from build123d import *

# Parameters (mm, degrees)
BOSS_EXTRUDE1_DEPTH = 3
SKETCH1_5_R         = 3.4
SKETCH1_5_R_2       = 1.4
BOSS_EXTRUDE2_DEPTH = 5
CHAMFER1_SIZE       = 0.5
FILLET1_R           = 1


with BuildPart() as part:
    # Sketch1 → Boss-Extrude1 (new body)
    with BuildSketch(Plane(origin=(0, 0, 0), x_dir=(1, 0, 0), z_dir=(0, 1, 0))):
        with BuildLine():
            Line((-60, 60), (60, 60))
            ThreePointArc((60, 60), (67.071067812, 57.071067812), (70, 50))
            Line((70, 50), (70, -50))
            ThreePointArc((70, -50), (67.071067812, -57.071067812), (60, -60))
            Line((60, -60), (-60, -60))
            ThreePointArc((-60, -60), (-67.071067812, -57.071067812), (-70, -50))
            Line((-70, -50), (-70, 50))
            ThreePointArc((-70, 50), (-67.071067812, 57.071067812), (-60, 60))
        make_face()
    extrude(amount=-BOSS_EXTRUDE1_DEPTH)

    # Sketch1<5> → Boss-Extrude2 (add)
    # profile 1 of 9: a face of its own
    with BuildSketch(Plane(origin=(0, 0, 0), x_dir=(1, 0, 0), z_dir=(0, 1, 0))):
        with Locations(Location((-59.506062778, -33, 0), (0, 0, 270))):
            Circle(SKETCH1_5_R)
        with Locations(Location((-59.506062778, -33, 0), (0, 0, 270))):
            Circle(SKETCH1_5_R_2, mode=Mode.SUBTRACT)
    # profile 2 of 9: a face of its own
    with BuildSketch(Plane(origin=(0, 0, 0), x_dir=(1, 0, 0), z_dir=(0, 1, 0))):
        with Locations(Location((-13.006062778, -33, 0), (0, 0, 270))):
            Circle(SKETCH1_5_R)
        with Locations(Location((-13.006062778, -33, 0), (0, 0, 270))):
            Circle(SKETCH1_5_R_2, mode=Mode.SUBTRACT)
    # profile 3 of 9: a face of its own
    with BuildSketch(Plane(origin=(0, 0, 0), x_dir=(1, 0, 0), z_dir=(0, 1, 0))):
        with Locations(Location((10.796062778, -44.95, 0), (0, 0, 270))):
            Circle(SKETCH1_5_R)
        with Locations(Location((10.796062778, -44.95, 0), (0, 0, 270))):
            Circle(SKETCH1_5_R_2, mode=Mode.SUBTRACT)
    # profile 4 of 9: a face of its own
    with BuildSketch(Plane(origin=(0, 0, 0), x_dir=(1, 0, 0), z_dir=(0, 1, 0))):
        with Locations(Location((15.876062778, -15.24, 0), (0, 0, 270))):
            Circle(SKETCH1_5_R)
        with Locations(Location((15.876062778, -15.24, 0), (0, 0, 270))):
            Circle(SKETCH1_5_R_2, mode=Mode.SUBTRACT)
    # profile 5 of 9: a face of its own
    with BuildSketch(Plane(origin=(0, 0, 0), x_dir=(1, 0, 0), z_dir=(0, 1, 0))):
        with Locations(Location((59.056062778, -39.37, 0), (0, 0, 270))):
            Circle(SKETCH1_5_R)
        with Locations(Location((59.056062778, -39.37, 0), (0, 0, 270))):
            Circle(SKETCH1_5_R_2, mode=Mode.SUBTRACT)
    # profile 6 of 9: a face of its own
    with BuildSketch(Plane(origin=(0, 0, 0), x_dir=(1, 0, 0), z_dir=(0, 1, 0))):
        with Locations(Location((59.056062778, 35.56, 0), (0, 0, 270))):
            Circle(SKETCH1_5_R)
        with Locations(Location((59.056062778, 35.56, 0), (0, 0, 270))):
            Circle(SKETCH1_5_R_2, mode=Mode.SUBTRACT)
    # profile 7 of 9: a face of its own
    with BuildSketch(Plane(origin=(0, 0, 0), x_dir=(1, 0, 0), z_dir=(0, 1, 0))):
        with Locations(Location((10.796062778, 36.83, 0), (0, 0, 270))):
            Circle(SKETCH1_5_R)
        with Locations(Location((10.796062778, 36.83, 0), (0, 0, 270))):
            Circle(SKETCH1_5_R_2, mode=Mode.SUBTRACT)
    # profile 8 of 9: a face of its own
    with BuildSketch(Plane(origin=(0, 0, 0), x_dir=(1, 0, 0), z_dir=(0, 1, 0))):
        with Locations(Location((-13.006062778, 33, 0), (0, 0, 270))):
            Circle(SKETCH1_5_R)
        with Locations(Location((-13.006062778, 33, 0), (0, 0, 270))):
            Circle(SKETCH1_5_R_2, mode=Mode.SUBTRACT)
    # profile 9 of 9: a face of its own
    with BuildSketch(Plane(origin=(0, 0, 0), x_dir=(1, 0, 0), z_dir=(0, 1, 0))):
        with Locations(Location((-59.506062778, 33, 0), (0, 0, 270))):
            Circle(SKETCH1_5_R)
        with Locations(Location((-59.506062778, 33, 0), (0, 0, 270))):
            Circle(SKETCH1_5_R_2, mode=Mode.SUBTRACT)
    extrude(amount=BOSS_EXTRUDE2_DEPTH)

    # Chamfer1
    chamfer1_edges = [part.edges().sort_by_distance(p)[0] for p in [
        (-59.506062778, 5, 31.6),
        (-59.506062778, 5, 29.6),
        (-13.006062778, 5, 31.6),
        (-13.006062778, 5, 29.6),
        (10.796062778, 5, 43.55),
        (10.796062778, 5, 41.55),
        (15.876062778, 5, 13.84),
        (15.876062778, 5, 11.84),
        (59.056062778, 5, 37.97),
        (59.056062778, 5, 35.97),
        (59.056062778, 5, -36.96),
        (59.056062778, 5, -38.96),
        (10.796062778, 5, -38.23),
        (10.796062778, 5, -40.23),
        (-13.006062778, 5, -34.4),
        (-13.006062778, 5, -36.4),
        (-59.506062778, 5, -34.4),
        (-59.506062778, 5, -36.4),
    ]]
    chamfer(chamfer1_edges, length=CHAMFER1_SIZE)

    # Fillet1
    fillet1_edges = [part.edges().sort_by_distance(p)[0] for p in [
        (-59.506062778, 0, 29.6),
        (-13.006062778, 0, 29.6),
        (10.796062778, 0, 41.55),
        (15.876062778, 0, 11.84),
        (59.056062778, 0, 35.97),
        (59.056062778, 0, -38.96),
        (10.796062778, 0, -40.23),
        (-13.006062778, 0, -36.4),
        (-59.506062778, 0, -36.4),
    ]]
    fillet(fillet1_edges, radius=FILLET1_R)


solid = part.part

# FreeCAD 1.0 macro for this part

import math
import FreeCAD as App
import Part
import Sketcher

V = App.Vector
Q = App.Units.Quantity


def edges_at(feature, points):
    """Names of the edges that pass closest to the given points."""
    edges = feature.Shape.Edges
    near = lambda p: min(range(len(edges)), key=lambda i: edges[i].distToShape(Part.Vertex(*p))[0])
    return sorted({f"Edge{near(p) + 1}" for p in points})

doc = App.newDocument("Part")
body = doc.addObject("PartDesign::Body", "Body")

# Sketch on XZ plane
sketch1 = doc.addObject("Sketcher::SketchObject", "Sketch")
body.addObject(sketch1)
sketch1.AttachmentSupport = (doc.XZ_Plane, [""])
sketch1.MapMode = "FlatFace"
sketch1.addGeometry([
    Part.LineSegment(V(60, -60, 0), V(-60, -60, 0)),  # 0
    Part.ArcOfCircle(Part.Circle(V(-60, -50, 0), V(0, 0, 1), 10), math.radians(180), math.radians(270)),  # 1
    Part.LineSegment(V(-70, -50, 0), V(-70, 50, 0)),  # 2
    Part.ArcOfCircle(Part.Circle(V(-60, 50, 0), V(0, 0, 1), 10), math.radians(90), math.radians(180)),  # 3
    Part.LineSegment(V(-60, 60, 0), V(60, 60, 0)),  # 4
    Part.ArcOfCircle(Part.Circle(V(60, 50, 0), V(0, 0, 1), 10), math.radians(0), math.radians(90)),  # 5
    Part.LineSegment(V(70, 50, 0), V(70, -50, 0)),  # 6
    Part.ArcOfCircle(Part.Circle(V(60, -50, 0), V(0, 0, 1), 10), math.radians(-90), math.radians(0)),  # 7
], False)
sketch1.addConstraint([
    Sketcher.Constraint("Tangent", 0, 2, 1, 2),
    Sketcher.Constraint("Tangent", 1, 1, 2, 1),
    Sketcher.Constraint("Tangent", 2, 2, 3, 2),
    Sketcher.Constraint("Tangent", 3, 1, 4, 1),
    Sketcher.Constraint("Tangent", 4, 2, 5, 2),
    Sketcher.Constraint("Tangent", 5, 1, 6, 1),
    Sketcher.Constraint("Tangent", 6, 2, 7, 2),
    Sketcher.Constraint("Tangent", 7, 1, 0, 1),
    Sketcher.Constraint("Horizontal", 0),
    Sketcher.Constraint("Vertical", 2),
    Sketcher.Constraint("Horizontal", 4),
    Sketcher.Constraint("Vertical", 6),
    Sketcher.Constraint("Equal", 1, 3),
    Sketcher.Constraint("Equal", 3, 5),
    Sketcher.Constraint("Equal", 5, 7),
    Sketcher.Constraint("Symmetric", 1, 3, 5, 3, -1, 1),
    Sketcher.Constraint("Radius", 1, Q("10 mm")),
    Sketcher.Constraint("DistanceX", 0, 2, 0, 1, Q("120 mm")),
    Sketcher.Constraint("DistanceY", 2, 1, 2, 2, Q("100 mm")),
])
pad1 = doc.addObject("PartDesign::Pad", "Pad")
body.addObject(pad1)
pad1.Profile = sketch1
pad1.Length = 3

# Sketch on XZ plane
sketch2 = doc.addObject("Sketcher::SketchObject", "Sketch001")
body.addObject(sketch2)
sketch2.AttachmentSupport = (doc.XZ_Plane, [""])
sketch2.MapMode = "FlatFace"
sketch2.addGeometry([
    Part.Circle(V(-59.506063, 33, 0), V(0, 0, 1), 3.4),  # 0
    Part.Circle(V(-59.506063, 33, 0), V(0, 0, 1), 1.4),  # 1
    Part.Circle(V(-13.006063, 33, 0), V(0, 0, 1), 3.4),  # 2
    Part.Circle(V(-13.006063, 33, 0), V(0, 0, 1), 1.4),  # 3
    Part.Circle(V(10.796063, 44.95, 0), V(0, 0, 1), 3.4),  # 4
    Part.Circle(V(10.796063, 44.95, 0), V(0, 0, 1), 1.4),  # 5
    Part.Circle(V(15.876063, 15.24, 0), V(0, 0, 1), 3.4),  # 6
    Part.Circle(V(15.876063, 15.24, 0), V(0, 0, 1), 1.4),  # 7
    Part.Circle(V(59.056063, 39.37, 0), V(0, 0, 1), 3.4),  # 8
    Part.Circle(V(59.056063, 39.37, 0), V(0, 0, 1), 1.4),  # 9
    Part.Circle(V(59.056063, -35.56, 0), V(0, 0, 1), 3.4),  # 10
    Part.Circle(V(59.056063, -35.56, 0), V(0, 0, 1), 1.4),  # 11
    Part.Circle(V(10.796063, -36.83, 0), V(0, 0, 1), 3.4),  # 12
    Part.Circle(V(10.796063, -36.83, 0), V(0, 0, 1), 1.4),  # 13
    Part.Circle(V(-13.006063, -33, 0), V(0, 0, 1), 3.4),  # 14
    Part.Circle(V(-13.006063, -33, 0), V(0, 0, 1), 1.4),  # 15
    Part.Circle(V(-59.506063, -33, 0), V(0, 0, 1), 3.4),  # 16
    Part.Circle(V(-59.506063, -33, 0), V(0, 0, 1), 1.4),  # 17
], False)
sketch2.addConstraint([
    Sketcher.Constraint("Coincident", 1, 3, 0, 3),
    Sketcher.Constraint("Coincident", 3, 3, 2, 3),
    Sketcher.Constraint("Coincident", 5, 3, 4, 3),
    Sketcher.Constraint("Coincident", 7, 3, 6, 3),
    Sketcher.Constraint("Coincident", 9, 3, 8, 3),
    Sketcher.Constraint("Coincident", 11, 3, 10, 3),
    Sketcher.Constraint("Coincident", 13, 3, 12, 3),
    Sketcher.Constraint("Coincident", 15, 3, 14, 3),
    Sketcher.Constraint("Coincident", 17, 3, 16, 3),
    Sketcher.Constraint("Equal", 0, 2),
    Sketcher.Constraint("Equal", 1, 3),
    Sketcher.Constraint("Equal", 2, 4),
    Sketcher.Constraint("Equal", 3, 5),
    Sketcher.Constraint("Equal", 4, 6),
    Sketcher.Constraint("Equal", 5, 7),
    Sketcher.Constraint("Equal", 6, 8),
    Sketcher.Constraint("Equal", 7, 9),
    Sketcher.Constraint("Equal", 8, 10),
    Sketcher.Constraint("Equal", 9, 11),
    Sketcher.Constraint("Equal", 10, 12),
    Sketcher.Constraint("Equal", 11, 13),
    Sketcher.Constraint("Equal", 12, 14),
    Sketcher.Constraint("Equal", 13, 15),
    Sketcher.Constraint("Equal", 14, 16),
    Sketcher.Constraint("Equal", 15, 17),
    Sketcher.Constraint("Symmetric", 2, 3, 14, 3, -1),
    Sketcher.Constraint("Symmetric", 0, 3, 16, 3, -1),
    Sketcher.Constraint("Horizontal", 1, 3, 2, 3),
    Sketcher.Constraint("Vertical", 9, 3, 10, 3),
    Sketcher.Constraint("Vertical", 5, 3, 12, 3),
    Sketcher.Constraint("Diameter", 0, Q("6.8 mm")),
    Sketcher.Constraint("Diameter", 1, Q("2.8 mm")),
    Sketcher.Constraint("DistanceY", -1, 1, 0, 3, Q("33 mm")),
    Sketcher.Constraint("DistanceX", 0, 3, 2, 3, Q("46.5 mm")),
    Sketcher.Constraint("DistanceY", 10, 3, 6, 3, Q("50.8 mm")),
    Sketcher.Constraint("DistanceY", -1, 1, 4, 3, Q("44.95 mm")),
    Sketcher.Constraint("DistanceY", -1, 1, 6, 3, Q("15.24 mm")),
    Sketcher.Constraint("DistanceY", -1, 1, 8, 3, Q("39.37 mm")),
    Sketcher.Constraint("DistanceY", 12, 3, -1, 1, Q("36.83 mm")),
    Sketcher.Constraint("DistanceX", 4, 3, 6, 3, Q("5.08 mm")),
    Sketcher.Constraint("DistanceX", 4, 3, 8, 3, Q("48.26 mm")),
    Sketcher.Constraint("DistanceX", 0, 3, -1, 1, Q("59.506063 mm")),
    Sketcher.Constraint("DistanceX", -1, 1, 4, 3, Q("10.796063 mm")),
])
pad2 = doc.addObject("PartDesign::Pad", "Pad001")
body.addObject(pad2)
pad2.Profile = sketch2
pad2.Length = 5
pad2.Reversed = True
doc.recompute()

chamfer = doc.addObject("PartDesign::Chamfer", "Chamfer")
body.addObject(chamfer)
chamfer.Base = (pad2, edges_at(pad2, [
    (-59.506, 5, 31.6),
    (-59.506, 5, 29.6),
    (-13.006, 5, 31.6),
    (-13.006, 5, 29.6),
    (10.796, 5, 43.55),
    (10.796, 5, 41.55),
    (15.876, 5, 13.84),
    (15.876, 5, 11.84),
    (59.056, 5, 37.97),
    (59.056, 5, 35.97),
    (59.056, 5, -36.96),
    (59.056, 5, -38.96),
    (10.796, 5, -38.23),
    (10.796, 5, -40.23),
    (-13.006, 5, -34.4),
    (-13.006, 5, -36.4),
    (-59.506, 5, -34.4),
    (-59.506, 5, -36.4),
]))
chamfer.Size = 0.5
doc.recompute()

fillet = doc.addObject("PartDesign::Fillet", "Fillet")
body.addObject(fillet)
fillet.Base = (chamfer, edges_at(chamfer, [
    (-59.506, 0, 29.6),
    (-13.006, 0, 29.6),
    (10.796, 0, 41.55),
    (15.876, 0, 11.84),
    (59.056, 0, 35.97),
    (59.056, 0, -38.96),
    (10.796, 0, -40.23),
    (-13.006, 0, -36.4),
    (-59.506, 0, -36.4),
]))
fillet.Radius = 1

doc.recompute()
